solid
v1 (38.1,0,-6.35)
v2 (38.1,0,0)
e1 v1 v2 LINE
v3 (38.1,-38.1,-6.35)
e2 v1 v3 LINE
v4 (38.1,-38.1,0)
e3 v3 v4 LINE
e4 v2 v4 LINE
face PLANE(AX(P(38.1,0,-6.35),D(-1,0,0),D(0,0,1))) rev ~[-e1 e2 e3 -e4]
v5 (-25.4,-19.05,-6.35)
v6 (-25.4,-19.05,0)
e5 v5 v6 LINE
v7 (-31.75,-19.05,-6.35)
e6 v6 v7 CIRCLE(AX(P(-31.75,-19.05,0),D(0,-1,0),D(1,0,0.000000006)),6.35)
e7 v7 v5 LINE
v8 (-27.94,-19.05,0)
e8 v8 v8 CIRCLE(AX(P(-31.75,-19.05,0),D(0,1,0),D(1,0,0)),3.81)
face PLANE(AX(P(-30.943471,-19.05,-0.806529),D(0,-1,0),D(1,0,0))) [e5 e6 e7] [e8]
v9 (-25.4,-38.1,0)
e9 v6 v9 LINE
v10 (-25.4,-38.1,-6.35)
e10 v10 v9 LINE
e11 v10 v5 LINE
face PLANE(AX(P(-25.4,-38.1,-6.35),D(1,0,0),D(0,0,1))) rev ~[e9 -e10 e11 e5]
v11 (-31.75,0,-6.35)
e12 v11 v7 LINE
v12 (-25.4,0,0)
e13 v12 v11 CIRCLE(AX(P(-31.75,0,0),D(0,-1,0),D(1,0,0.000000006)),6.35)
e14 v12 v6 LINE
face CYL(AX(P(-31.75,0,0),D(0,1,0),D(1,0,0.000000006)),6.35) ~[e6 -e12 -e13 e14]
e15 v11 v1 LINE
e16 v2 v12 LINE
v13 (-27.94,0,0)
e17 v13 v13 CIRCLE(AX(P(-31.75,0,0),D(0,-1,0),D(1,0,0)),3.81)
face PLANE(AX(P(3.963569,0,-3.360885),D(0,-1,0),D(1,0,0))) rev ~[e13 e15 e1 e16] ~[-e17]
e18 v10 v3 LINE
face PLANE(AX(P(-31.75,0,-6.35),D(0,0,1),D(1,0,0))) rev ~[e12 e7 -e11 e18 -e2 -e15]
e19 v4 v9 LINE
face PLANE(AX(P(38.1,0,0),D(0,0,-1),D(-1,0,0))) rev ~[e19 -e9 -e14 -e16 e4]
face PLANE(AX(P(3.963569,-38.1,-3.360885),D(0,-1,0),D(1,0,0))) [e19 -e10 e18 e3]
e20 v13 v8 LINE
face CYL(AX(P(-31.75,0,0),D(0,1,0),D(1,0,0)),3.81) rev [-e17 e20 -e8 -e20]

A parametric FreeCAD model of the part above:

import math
import FreeCAD as App
import Part
import Sketcher

V = App.Vector
Q = App.Units.Quantity

doc = App.newDocument("Part")
body = doc.addObject("PartDesign::Body", "Body")

sketch1 = body.newObject("Sketcher::SketchObject", "Sketch")
sketch1.AttachmentSupport = (doc.getObject("XZ_Plane"), [""])
sketch1.MapMode = "FlatFace"
sketch1.addGeometry(Part.LineSegment(V(-31.8, -6.3, 0), V(38.1, -6.3, 0)), False)
sketch1.addGeometry(Part.LineSegment(V(38.1, -6.3, 0), V(38.1, 0, 0)), False)
sketch1.addGeometry(Part.LineSegment(V(38.1, 0, 0), V(-25.4, 0, 0)), False)
sketch1.addGeometry(Part.ArcOfCircle(Part.Circle(V(-31.7, 0, 0), V(0, 0, 1), 6.3), math.radians(0), math.radians(270)), False)
sketch1.addGeometry(Part.Circle(V(-31.8, 0, 0), V(0, 0, 1), 3.8), False)
sketch1.addConstraint(Sketcher.Constraint("Coincident", 0, 2, 1, 1))
sketch1.addConstraint(Sketcher.Constraint("Coincident", 1, 2, 2, 1))
sketch1.addConstraint(Sketcher.Constraint("Coincident", 2, 2, 3, 1))
sketch1.addConstraint(Sketcher.Constraint("Tangent", 3, 2, 0, 1))
sketch1.addConstraint(Sketcher.Constraint("Horizontal", 0))
sketch1.addConstraint(Sketcher.Constraint("Vertical", 1))
sketch1.addConstraint(Sketcher.Constraint("Horizontal", 2))
sketch1.addConstraint(Sketcher.Constraint("Coincident", 4, 3, 3, 3))
sketch1.addConstraint(Sketcher.Constraint("PointOnObject", 3, 3, -1))
sketch1.addConstraint(Sketcher.Constraint("PointOnObject", 1, 2, -1))
sketch1.addConstraint(Sketcher.Constraint("Diameter", 4, Q("0.3 in")))
sketch1.addConstraint(Sketcher.Constraint("Radius", 3, Q("0.25 in")))
sketch1.addConstraint(Sketcher.Constraint("DistanceX", 2, 2, 2, 1, Q("2.5 in")))
sketch1.addConstraint(Sketcher.Constraint("DistanceX", 2, 2, -1, 1, Q("1 in")))
pad1 = body.newObject("PartDesign::Pad", "Pad")
pad1.Profile = sketch1
pad1.Length = Q("1.5 in")

sketch2 = body.newObject("Sketcher::SketchObject", "Sketch001")
sketch2.AttachmentSupport = (doc.getObject("XZ_Plane"), [""])
sketch2.MapMode = "FlatFace"
sketch2.AttachmentOffset = App.Placement(V(0, 0, 1.5 * 25.4), App.Rotation())
sketch2.addGeometry(Part.LineSegment(V(-25, -6, 0), V(-25, 0, 0)), False)
sketch2.addGeometry(Part.ArcOfCircle(Part.Circle(V(-32, 0, 0), V(0, 0, 1), 6), math.radians(0), math.radians(270)), False)
sketch2.addGeometry(Part.LineSegment(V(-32, -6, 0), V(-25, -6, 0)), False)
sketch2.addConstraint(Sketcher.Constraint("Tangent", 0, 2, 1, 1))
sketch2.addConstraint(Sketcher.Constraint("Tangent", 1, 2, 2, 1))
sketch2.addConstraint(Sketcher.Constraint("Coincident", 2, 2, 0, 1))
sketch2.addConstraint(Sketcher.Constraint("Vertical", 0))
sketch2.addConstraint(Sketcher.Constraint("Horizontal", 2))
sketch2.addConstraint(Sketcher.Constraint("PointOnObject", 1, 3, -1))
sketch2.addConstraint(Sketcher.Constraint("Radius", 1, Q("0.25 in")))
sketch2.addConstraint(Sketcher.Constraint("DistanceX", 0, 2, -1, 1, Q("1 in")))
pocket1 = body.newObject("PartDesign::Pocket", "Pocket")
pocket1.Profile = sketch2
pocket1.Length = Q("0.75 in")

doc.recompute()
